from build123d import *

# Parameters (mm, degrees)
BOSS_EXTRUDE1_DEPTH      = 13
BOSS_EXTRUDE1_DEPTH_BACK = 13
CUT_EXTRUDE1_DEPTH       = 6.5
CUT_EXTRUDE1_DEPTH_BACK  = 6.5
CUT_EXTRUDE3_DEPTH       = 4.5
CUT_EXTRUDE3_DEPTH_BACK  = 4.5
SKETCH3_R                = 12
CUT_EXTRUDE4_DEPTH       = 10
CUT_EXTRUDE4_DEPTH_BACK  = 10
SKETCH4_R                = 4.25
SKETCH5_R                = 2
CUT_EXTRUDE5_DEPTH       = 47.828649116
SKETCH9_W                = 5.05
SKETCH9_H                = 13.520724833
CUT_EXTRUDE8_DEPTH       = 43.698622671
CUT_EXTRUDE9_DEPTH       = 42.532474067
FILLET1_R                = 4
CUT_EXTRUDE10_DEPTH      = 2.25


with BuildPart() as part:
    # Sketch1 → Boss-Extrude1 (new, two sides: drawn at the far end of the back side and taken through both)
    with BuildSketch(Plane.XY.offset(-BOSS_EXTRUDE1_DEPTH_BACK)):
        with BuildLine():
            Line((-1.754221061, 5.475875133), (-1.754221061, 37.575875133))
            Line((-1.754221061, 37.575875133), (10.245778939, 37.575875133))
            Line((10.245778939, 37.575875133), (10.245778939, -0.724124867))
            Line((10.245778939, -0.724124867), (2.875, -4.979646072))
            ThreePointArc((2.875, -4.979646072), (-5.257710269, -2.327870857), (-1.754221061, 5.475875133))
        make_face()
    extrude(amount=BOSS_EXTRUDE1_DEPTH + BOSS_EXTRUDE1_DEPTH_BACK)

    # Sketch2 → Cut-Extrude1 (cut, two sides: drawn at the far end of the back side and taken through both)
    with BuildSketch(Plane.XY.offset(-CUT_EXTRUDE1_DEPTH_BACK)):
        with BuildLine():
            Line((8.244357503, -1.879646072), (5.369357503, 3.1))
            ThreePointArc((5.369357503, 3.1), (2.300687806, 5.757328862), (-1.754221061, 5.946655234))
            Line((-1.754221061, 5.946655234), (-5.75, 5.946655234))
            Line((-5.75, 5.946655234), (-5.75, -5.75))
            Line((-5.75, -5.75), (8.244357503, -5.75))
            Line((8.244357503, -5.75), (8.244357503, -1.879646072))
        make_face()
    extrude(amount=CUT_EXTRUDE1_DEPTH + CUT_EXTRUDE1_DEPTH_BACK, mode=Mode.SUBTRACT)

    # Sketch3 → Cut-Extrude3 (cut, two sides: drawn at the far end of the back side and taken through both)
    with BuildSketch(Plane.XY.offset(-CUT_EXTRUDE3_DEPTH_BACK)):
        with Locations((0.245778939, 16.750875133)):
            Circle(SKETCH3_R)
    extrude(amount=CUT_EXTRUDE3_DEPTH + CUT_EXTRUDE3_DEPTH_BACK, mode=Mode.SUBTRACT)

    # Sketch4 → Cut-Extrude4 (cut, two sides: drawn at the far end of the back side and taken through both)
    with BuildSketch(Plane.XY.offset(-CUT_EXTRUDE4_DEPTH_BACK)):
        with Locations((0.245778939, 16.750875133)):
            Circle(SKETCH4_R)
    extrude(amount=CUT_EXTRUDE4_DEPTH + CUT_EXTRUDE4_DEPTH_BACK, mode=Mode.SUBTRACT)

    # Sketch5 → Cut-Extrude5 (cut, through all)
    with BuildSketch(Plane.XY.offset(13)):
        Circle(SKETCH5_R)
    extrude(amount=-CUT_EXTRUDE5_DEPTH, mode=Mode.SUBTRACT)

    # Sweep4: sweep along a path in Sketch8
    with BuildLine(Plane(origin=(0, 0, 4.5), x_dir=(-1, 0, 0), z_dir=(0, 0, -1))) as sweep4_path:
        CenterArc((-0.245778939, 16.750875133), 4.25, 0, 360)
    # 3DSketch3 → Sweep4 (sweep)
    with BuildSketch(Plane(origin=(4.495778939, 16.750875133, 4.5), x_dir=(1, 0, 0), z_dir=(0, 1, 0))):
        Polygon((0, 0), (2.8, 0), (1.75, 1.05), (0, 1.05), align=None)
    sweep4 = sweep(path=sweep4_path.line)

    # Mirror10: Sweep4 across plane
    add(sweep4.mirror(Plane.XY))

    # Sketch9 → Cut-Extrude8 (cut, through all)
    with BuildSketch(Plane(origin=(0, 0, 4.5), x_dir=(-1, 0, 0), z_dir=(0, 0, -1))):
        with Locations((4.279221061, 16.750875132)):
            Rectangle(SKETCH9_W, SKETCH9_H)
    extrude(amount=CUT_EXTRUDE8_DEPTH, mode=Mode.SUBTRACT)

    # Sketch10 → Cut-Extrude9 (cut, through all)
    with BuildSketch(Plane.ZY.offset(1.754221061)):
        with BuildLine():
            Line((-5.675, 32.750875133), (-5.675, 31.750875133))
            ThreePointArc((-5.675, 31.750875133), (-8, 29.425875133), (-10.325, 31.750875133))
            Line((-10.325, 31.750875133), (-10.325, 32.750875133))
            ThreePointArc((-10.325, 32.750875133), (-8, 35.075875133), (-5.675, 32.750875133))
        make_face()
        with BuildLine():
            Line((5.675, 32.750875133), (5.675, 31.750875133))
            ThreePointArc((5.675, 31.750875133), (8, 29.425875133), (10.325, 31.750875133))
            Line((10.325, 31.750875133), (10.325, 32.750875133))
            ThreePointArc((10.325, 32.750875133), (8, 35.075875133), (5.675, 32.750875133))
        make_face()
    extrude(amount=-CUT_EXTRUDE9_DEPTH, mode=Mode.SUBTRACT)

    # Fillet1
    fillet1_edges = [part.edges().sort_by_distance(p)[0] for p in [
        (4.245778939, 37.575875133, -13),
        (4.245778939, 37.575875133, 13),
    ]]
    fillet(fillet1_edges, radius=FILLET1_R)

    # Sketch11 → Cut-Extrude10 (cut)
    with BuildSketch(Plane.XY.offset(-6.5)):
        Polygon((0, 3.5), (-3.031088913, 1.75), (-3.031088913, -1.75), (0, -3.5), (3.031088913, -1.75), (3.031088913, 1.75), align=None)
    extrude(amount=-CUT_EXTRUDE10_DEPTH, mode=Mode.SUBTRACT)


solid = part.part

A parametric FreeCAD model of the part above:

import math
import FreeCAD as App
import Part
import Sketcher

V = App.Vector
Q = App.Units.Quantity


def edges_at(feature, points):
    """Names of the edges that pass closest to the given points."""
    edges = feature.Shape.Edges
    near = lambda p: min(range(len(edges)), key=lambda i: edges[i].distToShape(Part.Vertex(*p))[0])
    return sorted({f"Edge{near(p) + 1}" for p in points})


def add_polygon(sketch, points):
    """Adds a closed chain of lines whose ends are joined by coincident constraints."""
    first, n = sketch.GeometryCount, len(points)
    for a, b in zip(points, points[1:] + points[:1]):
        sketch.addGeometry(Part.LineSegment(App.Vector(*a, 0), App.Vector(*b, 0)), False)
    for i in range(n):
        sketch.addConstraint(Sketcher.Constraint("Coincident", first + i, 2, first + (i + 1) % n, 1))

doc = App.newDocument("Part")
body = doc.addObject("PartDesign::Body", "Body")

# Sketch on XY plane
sketch1 = body.newObject("Sketcher::SketchObject", "Sketch")
sketch1.AttachmentSupport = (doc.getObject("XY_Plane"), [""])
sketch1.MapMode = "FlatFace"
sketch1.addGeometry([
    Part.LineSegment(V(-1.754221, 37.575875, 0), V(-1.754221, 5.475875, 0)),  # 0
    Part.ArcOfCircle(Part.Circle(V(0, 0, 0), V(0, 0, 1), 5.75), math.radians(107.763093), math.radians(300)),  # 1
    Part.LineSegment(V(2.875, -4.979646, 0), V(10.245779, -0.724125, 0)),  # 2
    Part.LineSegment(V(10.245779, -0.724125, 0), V(10.245779, 37.575875, 0)),  # 3
    Part.LineSegment(V(10.245779, 37.575875, 0), V(-1.754221, 37.575875, 0)),  # 4
], False)
sketch1.addConstraint([
    Sketcher.Constraint("Coincident", 0, 2, 1, 1),
    Sketcher.Constraint("Tangent", 1, 2, 2, 1),
    Sketcher.Constraint("Coincident", 2, 2, 3, 1),
    Sketcher.Constraint("Coincident", 3, 2, 4, 1),
    Sketcher.Constraint("Coincident", 4, 2, 0, 1),
    Sketcher.Constraint("Vertical", 0),
    Sketcher.Constraint("Vertical", 3),
    Sketcher.Constraint("Horizontal", 4),
    Sketcher.Constraint("Coincident", 1, 3, -1, 1),
    Sketcher.Constraint("DistanceX", 4, 2, 4, 1, Q("12 mm")),
    Sketcher.Constraint("Angle", 2, Q("30 deg")),
    Sketcher.Constraint("Radius", 1, Q("5.75 mm")),
    Sketcher.Constraint("DistanceY", 0, 2, 0, 1, Q("32.1 mm")),
    Sketcher.Constraint("DistanceY", 3, 1, 3, 2, Q("38.3 mm")),
])
pad1 = body.newObject("PartDesign::Pad", "Pad")
pad1.Profile = sketch1
pad1.Type = "TwoLengths"
pad1.Length = 13
pad1.Length2 = 13

# Sketch on XY plane
sketch2 = body.newObject("Sketcher::SketchObject", "Sketch001")
sketch2.AttachmentSupport = (doc.getObject("XY_Plane"), [""])
sketch2.MapMode = "FlatFace"
sketch2.addGeometry([
    Part.LineSegment(V(8.244358, -1.879646, 0), V(5.369358, 3.1, 0)),  # 0
    Part.ArcOfCircle(Part.Circle(V(0, 0, 0), V(0, 0, 1), 6.2), math.radians(30), math.radians(106.435685)),  # 1
    Part.LineSegment(V(-1.754221, 5.946655, 0), V(-5.75, 5.946655, 0)),  # 2
    Part.LineSegment(V(-5.75, 5.946655, 0), V(-5.75, -5.75, 0)),  # 3
    Part.LineSegment(V(-5.75, -5.75, 0), V(8.244358, -5.75, 0)),  # 4
    Part.LineSegment(V(8.244358, -5.75, 0), V(8.244358, -1.879646, 0)),  # 5
], False)
sketch2.addConstraint([
    Sketcher.Constraint("Tangent", 0, 2, 1, 1),
    Sketcher.Constraint("Coincident", 1, 2, 2, 1),
    Sketcher.Constraint("Coincident", 2, 2, 3, 1),
    Sketcher.Constraint("Coincident", 3, 2, 4, 1),
    Sketcher.Constraint("Coincident", 4, 2, 5, 1),
    Sketcher.Constraint("Coincident", 5, 2, 0, 1),
    Sketcher.Constraint("Horizontal", 2),
    Sketcher.Constraint("Vertical", 3),
    Sketcher.Constraint("Horizontal", 4),
    Sketcher.Constraint("Vertical", 5),
    Sketcher.Constraint("Coincident", 1, 3, -1, 1),
    Sketcher.Constraint("Radius", 1, Q("6.2 mm")),
    Sketcher.Constraint("Angle", 0, Q("120 deg")),
    Sketcher.Constraint("Distance", 0, Q("5.75 mm")),
    Sketcher.Constraint("DistanceX", 2, 2, -1, 1, Q("5.75 mm")),
    Sketcher.Constraint("DistanceY", 3, 2, -1, 1, Q("5.75 mm")),
    Sketcher.Constraint("DistanceX", 2, 2, 2, 1, Q("3.995779 mm")),
])
pocket1 = body.newObject("PartDesign::Pocket", "Pocket")
pocket1.Profile = sketch2
pocket1.Type = "TwoLengths"
pocket1.Length = 6.5
pocket1.Length2 = 6.5
pocket1.Reversed = True

# Sketch on XY plane
sketch3 = body.newObject("Sketcher::SketchObject", "Sketch002")
sketch3.AttachmentSupport = (doc.getObject("XY_Plane"), [""])
sketch3.MapMode = "FlatFace"
sketch3.addGeometry(Part.Circle(V(0.245779, 16.750875, 0), V(0, 0, 1), 12), False)
sketch3.addConstraint([
    Sketcher.Constraint("Diameter", 0, Q("24 mm")),
    Sketcher.Constraint("DistanceX", -1, 1, 0, 3, Q("0.245779 mm")),
    Sketcher.Constraint("DistanceY", -1, 1, 0, 3, Q("16.750875 mm")),
])
pocket2 = body.newObject("PartDesign::Pocket", "Pocket001")
pocket2.Profile = sketch3
pocket2.Type = "TwoLengths"
pocket2.Length = 4.5
pocket2.Length2 = 4.5
pocket2.Reversed = True

# Sketch on XY plane
sketch4 = body.newObject("Sketcher::SketchObject", "Sketch003")
sketch4.AttachmentSupport = (doc.getObject("XY_Plane"), [""])
sketch4.MapMode = "FlatFace"
sketch4.addGeometry(Part.Circle(V(0.245779, 16.750875, 0), V(0, 0, 1), 4.25), False)
sketch4.addConstraint([
    Sketcher.Constraint("Diameter", 0, Q("8.5 mm")),
    Sketcher.Constraint("DistanceX", -1, 1, 0, 3, Q("0.245779 mm")),
    Sketcher.Constraint("DistanceY", -1, 1, 0, 3, Q("16.750875 mm")),
])
pocket3 = body.newObject("PartDesign::Pocket", "Pocket002")
pocket3.Profile = sketch4
pocket3.Type = "TwoLengths"
pocket3.Length = 10
pocket3.Length2 = 10
pocket3.Reversed = True

# Sketch on XY plane
sketch5 = body.newObject("Sketcher::SketchObject", "Sketch004")
sketch5.AttachmentSupport = (doc.getObject("XY_Plane"), [""])
sketch5.MapMode = "FlatFace"
sketch5.AttachmentOffset = App.Placement(V(0, 0, 13), App.Rotation())
sketch5.addGeometry(Part.Circle(V(0, 0, 0), V(0, 0, 1), 2), False)
sketch5.addConstraint([
    Sketcher.Constraint("Coincident", 0, 3, -1, 1),
    Sketcher.Constraint("Diameter", 0, Q("4 mm")),
])
pocket4 = body.newObject("PartDesign::Pocket", "Pocket003")
pocket4.Profile = sketch5
pocket4.Type = "ThroughAll"

# Sketch on XZ plane
sketch6 = body.newObject("Sketcher::SketchObject", "Sketch005")
sketch6.AttachmentSupport = (doc.getObject("XZ_Plane"), [""])
sketch6.MapMode = "FlatFace"
sketch6.AttachmentOffset = App.Placement(V(0, 0, -16.750875), App.Rotation())
add_polygon(sketch6, [(4.495779, 4.5), (7.295779, 4.5), (6.245779, 3.45), (4.495779, 3.45)])  # lines 0-3
sketch6.addConstraint([
    Sketcher.Constraint("Horizontal", 0),
    Sketcher.Constraint("Horizontal", 2),
    Sketcher.Constraint("Vertical", 3),
    Sketcher.Constraint("Angle", 1, Q("-135 deg")),
    Sketcher.Constraint("DistanceX", 0, 1, 0, 2, Q("2.8 mm")),
    Sketcher.Constraint("DistanceX", 2, 2, 2, 1, Q("1.75 mm")),
    Sketcher.Constraint("DistanceY", -1, 1, 0, 2, Q("4.5 mm")),
    Sketcher.Constraint("DistanceX", -1, 1, 0, 2, Q("7.295779 mm")),
])

# Sketch on XY plane
sketch7 = body.newObject("Sketcher::SketchObject", "Sketch006")
sketch7.AttachmentSupport = (doc.getObject("XY_Plane"), [""])
sketch7.MapMode = "FlatFace"
sketch7.AttachmentOffset = App.Placement(V(0, 0, 4.5), App.Rotation())
sketch7.addGeometry(Part.Circle(V(0.245779, 16.750875, 0), V(0, 0, 1), 4.25), False)
sketch7.addConstraint([
    Sketcher.Constraint("Diameter", 0, Q("8.5 mm")),
    Sketcher.Constraint("DistanceX", -1, 1, 0, 3, Q("0.245779 mm")),
    Sketcher.Constraint("DistanceY", -1, 1, 0, 3, Q("16.750875 mm")),
])
doc.recompute()

additivepipe = body.newObject("PartDesign::AdditivePipe", "AdditivePipe")
additivepipe.Profile = sketch6
additivepipe.Spine = (sketch7, ["Edge1"])
doc.recompute()

mirrored = body.newObject("PartDesign::Mirrored", "Mirrored")
mirrored.Originals = [additivepipe]
mirrored.MirrorPlane = (doc.getObject("XY_Plane"), [""])
body.Tip = mirrored

# Sketch on XY plane
sketch8 = body.newObject("Sketcher::SketchObject", "Sketch007")
sketch8.AttachmentSupport = (doc.getObject("XY_Plane"), [""])
sketch8.MapMode = "FlatFace"
sketch8.AttachmentOffset = App.Placement(V(0, 0, 4.5), App.Rotation())
add_polygon(sketch8, [(-1.754221, 23.511238), (-1.754221, 9.990513), (-6.804221, 9.990513), (-6.804221, 23.511238)])  # lines 0-3
sketch8.addConstraint([
    Sketcher.Constraint("Vertical", 0),
    Sketcher.Constraint("Horizontal", 1),
    Sketcher.Constraint("Vertical", 2),
    Sketcher.Constraint("Horizontal", 3),
    Sketcher.Constraint("DistanceX", 1, 2, 1, 1, Q("5.05 mm")),
    Sketcher.Constraint("DistanceY", 0, 2, 0, 1, Q("13.520725 mm")),
    Sketcher.Constraint("DistanceX", 0, 2, -1, 1, Q("1.754221 mm")),
    Sketcher.Constraint("DistanceY", -1, 1, 0, 2, Q("9.990513 mm")),
])
pocket5 = body.newObject("PartDesign::Pocket", "Pocket004")
pocket5.Profile = sketch8
pocket5.Type = "ThroughAll"

# Sketch on YZ plane
sketch9 = body.newObject("Sketcher::SketchObject", "Sketch008")
sketch9.AttachmentSupport = (doc.getObject("YZ_Plane"), [""])
sketch9.MapMode = "FlatFace"
sketch9.AttachmentOffset = App.Placement(V(0, 0, -1.754221), App.Rotation())
sketch9.addGeometry([
    Part.LineSegment(V(31.750875, -5.675, 0), V(32.750875, -5.675, 0)),  # 0
    Part.ArcOfCircle(Part.Circle(V(32.750875, -8, 0), V(0, 0, 1), 2.325), math.radians(-90), math.radians(90)),  # 1
    Part.LineSegment(V(32.750875, -10.325, 0), V(31.750875, -10.325, 0)),  # 2
    Part.ArcOfCircle(Part.Circle(V(31.750875, -8, 0), V(0, 0, 1), 2.325), math.radians(90), math.radians(270)),  # 3
    Part.LineSegment(V(32.750875, 5.675, 0), V(31.750875, 5.675, 0)),  # 4
    Part.ArcOfCircle(Part.Circle(V(31.750875, 8, 0), V(0, 0, 1), 2.325), math.radians(90), math.radians(270)),  # 5
    Part.LineSegment(V(31.750875, 10.325, 0), V(32.750875, 10.325, 0)),  # 6
    Part.ArcOfCircle(Part.Circle(V(32.750875, 8, 0), V(0, 0, 1), 2.325), math.radians(-90), math.radians(90)),  # 7
], False)
sketch9.addConstraint([
    Sketcher.Constraint("Tangent", 0, 2, 1, 2),
    Sketcher.Constraint("Tangent", 1, 1, 2, 1),
    Sketcher.Constraint("Tangent", 2, 2, 3, 2),
    Sketcher.Constraint("Tangent", 3, 1, 0, 1),
    Sketcher.Constraint("Tangent", 4, 2, 5, 2),
    Sketcher.Constraint("Tangent", 5, 1, 6, 1),
    Sketcher.Constraint("Tangent", 6, 2, 7, 2),
    Sketcher.Constraint("Tangent", 7, 1, 4, 1),
    Sketcher.Constraint("Horizontal", 0),
    Sketcher.Constraint("Horizontal", 2),
    Sketcher.Constraint("Horizontal", 4),
    Sketcher.Constraint("Horizontal", 6),
    Sketcher.Constraint("Equal", 3, 5),
    Sketcher.Constraint("Symmetric", 3, 3, 5, 3, -1),
    Sketcher.Constraint("Vertical", 1, 3, 7, 3),
    Sketcher.Constraint("DistanceX", 0, 1, 0, 2, Q("1 mm")),
    Sketcher.Constraint("DistanceY", 1, 3, -1, 1, Q("8 mm")),
    Sketcher.Constraint("Radius", 1, Q("2.325 mm")),
    Sketcher.Constraint("DistanceX", -1, 1, 1, 3, Q("32.750875 mm")),
])
pocket6 = body.newObject("PartDesign::Pocket", "Pocket005")
pocket6.Profile = sketch9
pocket6.Type = "ThroughAll"
pocket6.Reversed = True
doc.recompute()

fillet = body.newObject("PartDesign::Fillet", "Fillet")
fillet.Base = (pocket6, edges_at(pocket6, [(4.246, 37.576, -13), (4.246, 37.576, 13)]))
fillet.Radius = 4

# Sketch on XY plane
sketch10 = body.newObject("Sketcher::SketchObject", "Sketch009")
sketch10.AttachmentSupport = (doc.getObject("XY_Plane"), [""])
sketch10.MapMode = "FlatFace"
sketch10.AttachmentOffset = App.Placement(V(0, 0, -6.5), App.Rotation())
add_polygon(sketch10, [(0, 3.5), (-3.031089, 1.75), (-3.031089, -1.75), (0, -3.5), (3.031089, -1.75), (3.031089, 1.75)])  # lines 0-5
sketch10.addConstraint([
    Sketcher.Constraint("Vertical", 1),
    Sketcher.Constraint("Vertical", 4),
    Sketcher.Constraint("Symmetric", 0, 2, 3, 2, -1, 1),
    Sketcher.Constraint("Symmetric", 2, 2, 5, 2, -1, 1),
    Sketcher.Constraint("PointOnObject", 2, 2, -2),
    Sketcher.Constraint("Parallel", 2, 5),
    Sketcher.Constraint("Horizontal", 1, 2, 3, 2),
    Sketcher.Constraint("Angle", 0, Q("-150 deg")),
    Sketcher.Constraint("DistanceY", 1, 2, 1, 1, Q("3.5 mm")),
    Sketcher.Constraint("DistanceY", 2, 2, 5, 2, Q("7 mm")),
])
pocket7 = body.newObject("PartDesign::Pocket", "Pocket006")
pocket7.Profile = sketch10
pocket7.Length = 2.25

doc.recompute()
